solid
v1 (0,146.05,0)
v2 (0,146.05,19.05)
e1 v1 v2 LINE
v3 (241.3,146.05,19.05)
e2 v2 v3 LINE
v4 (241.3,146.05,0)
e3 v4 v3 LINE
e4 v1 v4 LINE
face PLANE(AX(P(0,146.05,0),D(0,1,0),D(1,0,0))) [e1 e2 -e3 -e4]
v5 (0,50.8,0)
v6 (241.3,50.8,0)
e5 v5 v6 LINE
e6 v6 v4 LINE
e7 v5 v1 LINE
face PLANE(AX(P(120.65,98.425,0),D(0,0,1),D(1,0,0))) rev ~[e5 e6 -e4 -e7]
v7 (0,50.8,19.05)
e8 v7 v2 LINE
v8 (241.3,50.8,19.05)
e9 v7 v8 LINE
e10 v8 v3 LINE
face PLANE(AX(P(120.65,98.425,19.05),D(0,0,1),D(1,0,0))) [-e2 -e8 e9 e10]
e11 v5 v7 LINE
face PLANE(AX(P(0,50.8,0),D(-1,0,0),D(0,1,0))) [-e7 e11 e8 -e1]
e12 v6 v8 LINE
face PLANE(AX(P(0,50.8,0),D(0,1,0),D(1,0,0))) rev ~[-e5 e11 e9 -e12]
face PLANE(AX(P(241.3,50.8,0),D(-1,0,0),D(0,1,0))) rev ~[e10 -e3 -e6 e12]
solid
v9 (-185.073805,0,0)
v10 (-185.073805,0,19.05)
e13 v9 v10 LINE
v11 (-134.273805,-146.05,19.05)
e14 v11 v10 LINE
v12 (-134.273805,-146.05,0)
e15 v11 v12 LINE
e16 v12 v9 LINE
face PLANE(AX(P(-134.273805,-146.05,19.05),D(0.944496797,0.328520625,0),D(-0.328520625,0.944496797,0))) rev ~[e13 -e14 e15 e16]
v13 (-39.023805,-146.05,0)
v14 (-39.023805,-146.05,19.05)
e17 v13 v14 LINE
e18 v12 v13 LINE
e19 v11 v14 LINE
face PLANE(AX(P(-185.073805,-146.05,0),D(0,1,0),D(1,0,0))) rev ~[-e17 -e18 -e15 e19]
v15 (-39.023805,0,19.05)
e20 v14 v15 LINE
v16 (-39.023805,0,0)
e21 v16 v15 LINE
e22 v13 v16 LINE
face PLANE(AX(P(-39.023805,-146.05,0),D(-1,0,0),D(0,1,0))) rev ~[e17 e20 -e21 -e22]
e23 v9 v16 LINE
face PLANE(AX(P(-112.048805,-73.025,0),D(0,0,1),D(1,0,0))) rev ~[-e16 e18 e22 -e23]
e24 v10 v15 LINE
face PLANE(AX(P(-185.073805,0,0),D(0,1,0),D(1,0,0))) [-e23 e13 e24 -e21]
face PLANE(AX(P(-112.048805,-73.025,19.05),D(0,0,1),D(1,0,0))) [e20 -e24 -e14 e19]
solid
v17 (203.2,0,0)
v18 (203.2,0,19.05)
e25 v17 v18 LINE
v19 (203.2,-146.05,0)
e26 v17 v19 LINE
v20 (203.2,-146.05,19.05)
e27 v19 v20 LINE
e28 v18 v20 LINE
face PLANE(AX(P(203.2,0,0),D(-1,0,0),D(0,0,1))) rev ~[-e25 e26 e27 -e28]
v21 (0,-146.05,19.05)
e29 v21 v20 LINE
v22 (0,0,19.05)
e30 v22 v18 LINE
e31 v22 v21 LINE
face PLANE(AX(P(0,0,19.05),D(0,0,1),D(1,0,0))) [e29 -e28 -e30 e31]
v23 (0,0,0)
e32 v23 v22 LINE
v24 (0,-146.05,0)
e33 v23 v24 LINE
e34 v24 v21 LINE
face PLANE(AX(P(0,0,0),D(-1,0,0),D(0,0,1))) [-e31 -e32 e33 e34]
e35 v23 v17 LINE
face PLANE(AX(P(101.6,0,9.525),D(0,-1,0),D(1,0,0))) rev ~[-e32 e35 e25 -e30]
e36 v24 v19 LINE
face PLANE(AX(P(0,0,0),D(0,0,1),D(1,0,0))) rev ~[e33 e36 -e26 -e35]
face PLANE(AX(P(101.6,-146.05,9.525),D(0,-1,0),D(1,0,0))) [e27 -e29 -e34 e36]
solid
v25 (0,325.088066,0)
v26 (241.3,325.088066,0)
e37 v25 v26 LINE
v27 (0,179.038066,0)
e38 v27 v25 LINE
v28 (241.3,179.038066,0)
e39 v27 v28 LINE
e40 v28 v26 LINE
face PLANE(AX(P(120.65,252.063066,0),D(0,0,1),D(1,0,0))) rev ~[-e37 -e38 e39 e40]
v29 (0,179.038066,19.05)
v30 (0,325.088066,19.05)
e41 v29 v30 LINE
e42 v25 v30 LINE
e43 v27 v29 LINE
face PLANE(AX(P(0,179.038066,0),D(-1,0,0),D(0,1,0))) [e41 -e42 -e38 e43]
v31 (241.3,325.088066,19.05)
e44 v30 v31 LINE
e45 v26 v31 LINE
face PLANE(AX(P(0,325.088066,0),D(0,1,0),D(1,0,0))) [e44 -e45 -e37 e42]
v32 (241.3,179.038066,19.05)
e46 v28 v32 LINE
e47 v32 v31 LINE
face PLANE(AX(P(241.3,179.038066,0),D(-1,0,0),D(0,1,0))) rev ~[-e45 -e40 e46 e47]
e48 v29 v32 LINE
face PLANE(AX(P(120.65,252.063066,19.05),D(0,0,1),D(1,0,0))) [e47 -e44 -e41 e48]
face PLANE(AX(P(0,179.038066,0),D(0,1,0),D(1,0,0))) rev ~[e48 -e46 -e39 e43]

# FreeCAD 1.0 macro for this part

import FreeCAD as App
import Part
import Sketcher

V = App.Vector
Q = App.Units.Quantity


def add_polygon(sketch, points):
    """Adds a closed chain of lines whose ends are joined by coincident constraints."""
    first, n = sketch.GeometryCount, len(points)
    for a, b in zip(points, points[1:] + points[:1]):
        sketch.addGeometry(Part.LineSegment(App.Vector(*a, 0), App.Vector(*b, 0)), False)
    for i in range(n):
        sketch.addConstraint(Sketcher.Constraint("Coincident", first + i, 2, first + (i + 1) % n, 1))

doc = App.newDocument("Part")
body = doc.addObject("PartDesign::Body", "Body")

sketch1 = body.newObject("Sketcher::SketchObject", "Sketch")
sketch1.AttachmentSupport = (doc.getObject("XZ_Plane"), [""])
sketch1.MapMode = "FlatFace"
add_polygon(sketch1, [(0, 19), (0, 0), (203, 0), (203, 19)])
sketch1.addConstraint(Sketcher.Constraint("Vertical", 0))
sketch1.addConstraint(Sketcher.Constraint("Horizontal", 1))
sketch1.addConstraint(Sketcher.Constraint("Vertical", 2))
sketch1.addConstraint(Sketcher.Constraint("Horizontal", 3))
sketch1.addConstraint(Sketcher.Constraint("Coincident", 0, 2, -1, 1))
sketch1.addConstraint(Sketcher.Constraint("DistanceX", 1, 1, 1, 2, Q("8 in")))
sketch1.addConstraint(Sketcher.Constraint("DistanceY", 0, 2, 0, 1, Q("0.75 in")))
pad1 = body.newObject("PartDesign::Pad", "Pad")
pad1.Profile = sketch1
pad1.Length = Q("5.75 in")
body2 = doc.addObject("PartDesign::Body", "Body001")

sketch2 = body2.newObject("Sketcher::SketchObject", "Sketch001")
sketch2.AttachmentSupport = (doc.getObject("XY_Plane001"), [""])
sketch2.MapMode = "FlatFace"
add_polygon(sketch2, [(0, 146), (0, 51), (241, 51), (241, 146)])
sketch2.addConstraint(Sketcher.Constraint("Vertical", 0))
sketch2.addConstraint(Sketcher.Constraint("Horizontal", 1))
sketch2.addConstraint(Sketcher.Constraint("Vertical", 2))
sketch2.addConstraint(Sketcher.Constraint("Horizontal", 3))
sketch2.addConstraint(Sketcher.Constraint("PointOnObject", 0, 2, -2))
sketch2.addConstraint(Sketcher.Constraint("DistanceX", 1, 1, 1, 2, Q("9.5 in")))
sketch2.addConstraint(Sketcher.Constraint("DistanceY", -1, 1, 0, 2, Q("2 in")))
sketch2.addConstraint(Sketcher.Constraint("DistanceY", 0, 2, 0, 1, Q("3.75 in")))
pad2 = body2.newObject("PartDesign::Pad", "Pad001")
pad2.Profile = sketch2
pad2.Length = Q("0.75 in")
body3 = doc.addObject("PartDesign::Body", "Body002")

sketch3 = body3.newObject("Sketcher::SketchObject", "Sketch002")
sketch3.AttachmentSupport = (doc.getObject("XY_Plane002"), [""])
sketch3.MapMode = "FlatFace"
add_polygon(sketch3, [(0, 325), (0, 179), (241, 179), (241, 325)])
sketch3.addConstraint(Sketcher.Constraint("Vertical", 0))
sketch3.addConstraint(Sketcher.Constraint("Horizontal", 1))
sketch3.addConstraint(Sketcher.Constraint("Vertical", 2))
sketch3.addConstraint(Sketcher.Constraint("Horizontal", 3))
sketch3.addConstraint(Sketcher.Constraint("PointOnObject", 0, 2, -2))
sketch3.addConstraint(Sketcher.Constraint("DistanceX", 1, 1, 1, 2, Q("9.5 in")))
sketch3.addConstraint(Sketcher.Constraint("DistanceY", 0, 2, 0, 1, Q("5.75 in")))
sketch3.addConstraint(Sketcher.Constraint("DistanceY", -1, 1, 0, 2, 179.038066))
pad3 = body3.newObject("PartDesign::Pad", "Pad002")
pad3.Profile = sketch3
pad3.Length = Q("0.75 in")
body4 = doc.addObject("PartDesign::Body", "Body003")

sketch4 = body4.newObject("Sketcher::SketchObject", "Sketch003")
sketch4.AttachmentSupport = (doc.getObject("XY_Plane003"), [""])
sketch4.MapMode = "FlatFace"
add_polygon(sketch4, [(-185, 0), (-185, -146), (-39, -146), (-39, 0)])
sketch4.addConstraint(Sketcher.Constraint("Vertical", 0))
sketch4.addConstraint(Sketcher.Constraint("Horizontal", 1))
sketch4.addConstraint(Sketcher.Constraint("Vertical", 2))
sketch4.addConstraint(Sketcher.Constraint("Horizontal", 3))
sketch4.addConstraint(Sketcher.Constraint("PointOnObject", 2, 2, -1))
sketch4.addConstraint(Sketcher.Constraint("Equal", 3, 0))
sketch4.addConstraint(Sketcher.Constraint("DistanceX", 1, 1, 1, 2, Q("5.75 in")))
sketch4.addConstraint(Sketcher.Constraint("DistanceX", 0, 2, -1, 1, 185.073805))
pad4 = body4.newObject("PartDesign::Pad", "Pad003")
pad4.Profile = sketch4
pad4.Length = Q("0.75 in")

sketch5 = body4.newObject("Sketcher::SketchObject", "Sketch004")
sketch5.AttachmentSupport = (doc.getObject("XY_Plane003"), [""])
sketch5.MapMode = "FlatFace"
sketch5.AttachmentOffset = App.Placement(V(0, 0, 0.75 * 25.4), App.Rotation())
add_polygon(sketch5, [(-134, -146), (-185, 0), (-185, -146)])
sketch5.addConstraint(Sketcher.Constraint("Vertical", 1))
sketch5.addConstraint(Sketcher.Constraint("Horizontal", 2))
sketch5.addConstraint(Sketcher.Constraint("PointOnObject", 0, 2, -1))
sketch5.addConstraint(Sketcher.Constraint("DistanceX", 2, 1, 2, 2, Q("2 in")))
sketch5.addConstraint(Sketcher.Constraint("DistanceY", 1, 2, 1, 1, Q("5.75 in")))
sketch5.addConstraint(Sketcher.Constraint("DistanceX", 0, 2, -1, 1, 185.073805))
pocket1 = body4.newObject("PartDesign::Pocket", "Pocket")
pocket1.Profile = sketch5
pocket1.Type = "ThroughAll"

doc.recompute()
